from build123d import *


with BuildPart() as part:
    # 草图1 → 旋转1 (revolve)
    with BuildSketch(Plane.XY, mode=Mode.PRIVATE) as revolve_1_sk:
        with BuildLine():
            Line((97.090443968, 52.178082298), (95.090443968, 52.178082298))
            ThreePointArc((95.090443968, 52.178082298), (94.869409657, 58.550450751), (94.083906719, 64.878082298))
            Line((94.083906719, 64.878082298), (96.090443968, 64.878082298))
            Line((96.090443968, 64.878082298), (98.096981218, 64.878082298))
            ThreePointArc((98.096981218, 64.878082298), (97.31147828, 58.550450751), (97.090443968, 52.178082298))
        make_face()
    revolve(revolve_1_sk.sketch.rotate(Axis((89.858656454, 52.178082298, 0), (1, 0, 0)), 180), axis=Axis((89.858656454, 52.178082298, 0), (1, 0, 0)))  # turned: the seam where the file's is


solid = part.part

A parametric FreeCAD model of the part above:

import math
import FreeCAD as App
import Part
import Sketcher
from FreeCAD import Vector
Q = App.Units.Quantity

doc = App.newDocument("Part")
body = doc.addObject("PartDesign::Body", "Body")

sketch1 = doc.addObject("Sketcher::SketchObject", "Sketch")
body.addObject(sketch1)
sketch1.AttachmentSupport = (doc.XY_Plane, [""])
sketch1.MapMode = "FlatFace"
sketch1.addGeometry([
    Part.LineSegment(Vector(95.1, 52.2, 0), Vector(97.1, 52.2, 0)),
    Part.ArcOfCircle(Part.Circle(Vector(168.9, 52.9, 0), Vector(0, 0, 1), 71.8), math.radians(170.38), math.radians(180.56)),
    Part.LineSegment(Vector(98.1, 64.9, 0), Vector(94.1, 64.9, 0)),
    Part.ArcOfCircle(Part.Circle(Vector(23.3, 52.9, 0), Vector(0, 0, 1), 71.8), math.radians(-0.56), math.radians(9.62)),
], False)
sketch1.addGeometry(Part.LineSegment(Vector(23.3, 52.2, 0), Vector(168.9, 52.2, 0)), True)
sketch1.addConstraint([
    Sketcher.Constraint("Coincident", 0, 2, 1, 2),
    Sketcher.Constraint("Coincident", 1, 1, 2, 1),
    Sketcher.Constraint("Coincident", 2, 2, 3, 2),
    Sketcher.Constraint("Coincident", 3, 1, 0, 1),
    Sketcher.Constraint("Horizontal", 0),
    Sketcher.Constraint("Horizontal", 2),
    Sketcher.Constraint("Horizontal", 4),
    Sketcher.Constraint("Equal", 1, 3),
    Sketcher.Constraint("Horizontal", 1, 3, 3, 3),
    Sketcher.Constraint("Horizontal", 3, 1, 4, 1),
    Sketcher.Constraint("Vertical", 3, 3, 4, 1),
    Sketcher.Constraint("Vertical", 1, 3, 4, 2),
    Sketcher.Constraint("Radius", 1, Q("71.8 mm")),
    Sketcher.Constraint("DistanceX", 0, 1, 0, 2, Q("2 mm")),
    Sketcher.Constraint("DistanceY", 0, 2, 1, 1, Q("12.7 mm")),
    Sketcher.Constraint("DistanceX", 2, 2, 2, 1, Q("4.013074 mm")),
    Sketcher.Constraint("DistanceX", -1, 1, 1, 1, Q("98.096981 mm")),
    Sketcher.Constraint("DistanceY", -1, 1, 1, 3, Q("52.877737 mm")),
])
revolution = doc.addObject("PartDesign::Revolution", "Revolution")
body.addObject(revolution)
revolution.Profile = sketch1
revolution.ReferenceAxis = (sketch1, ["Axis0"])
revolution.Angle = 360

doc.recompute()
